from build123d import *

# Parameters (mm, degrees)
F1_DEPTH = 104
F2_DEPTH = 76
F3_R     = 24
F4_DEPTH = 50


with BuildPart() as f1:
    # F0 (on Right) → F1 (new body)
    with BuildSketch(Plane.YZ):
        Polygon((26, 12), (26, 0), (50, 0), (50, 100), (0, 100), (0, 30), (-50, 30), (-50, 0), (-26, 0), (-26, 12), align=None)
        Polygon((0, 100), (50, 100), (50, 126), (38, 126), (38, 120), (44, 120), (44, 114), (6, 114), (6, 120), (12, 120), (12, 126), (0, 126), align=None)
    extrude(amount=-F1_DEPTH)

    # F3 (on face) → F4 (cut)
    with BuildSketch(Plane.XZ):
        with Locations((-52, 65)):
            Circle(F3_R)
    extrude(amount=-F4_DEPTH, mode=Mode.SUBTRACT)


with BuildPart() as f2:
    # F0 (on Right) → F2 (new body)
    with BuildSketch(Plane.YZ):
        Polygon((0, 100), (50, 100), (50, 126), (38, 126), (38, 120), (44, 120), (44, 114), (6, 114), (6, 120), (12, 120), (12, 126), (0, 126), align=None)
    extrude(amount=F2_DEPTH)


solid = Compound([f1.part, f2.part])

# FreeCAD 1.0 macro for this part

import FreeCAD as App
import Part
import Sketcher

doc = App.newDocument("Part")
body = doc.addObject("PartDesign::Body", "Body")

sketch1 = body.newObject("Sketcher::SketchObject", "Sketch")
sketch1.AttachmentSupport = (doc.getObject("YZ_Plane"), [""])
sketch1.MapMode = "FlatFace"
sketch1.addGeometry([
    Part.LineSegment(App.Vector(26, 12, 0), App.Vector(26, 0, 0)),
    Part.LineSegment(App.Vector(26, 0, 0), App.Vector(50, 0, 0)),
    Part.LineSegment(App.Vector(50, 0, 0), App.Vector(50, 126, 0)),
    Part.LineSegment(App.Vector(50, 126, 0), App.Vector(38, 126, 0)),
    Part.LineSegment(App.Vector(38, 126, 0), App.Vector(38, 120, 0)),
    Part.LineSegment(App.Vector(38, 120, 0), App.Vector(44, 120, 0)),
    Part.LineSegment(App.Vector(44, 120, 0), App.Vector(44, 114, 0)),
    Part.LineSegment(App.Vector(44, 114, 0), App.Vector(6, 114, 0)),
    Part.LineSegment(App.Vector(6, 114, 0), App.Vector(6, 120, 0)),
    Part.LineSegment(App.Vector(6, 120, 0), App.Vector(12, 120, 0)),
    Part.LineSegment(App.Vector(12, 120, 0), App.Vector(12, 126, 0)),
    Part.LineSegment(App.Vector(12, 126, 0), App.Vector(0, 126, 0)),
    Part.LineSegment(App.Vector(0, 126, 0), App.Vector(0, 30, 0)),
    Part.LineSegment(App.Vector(0, 30, 0), App.Vector(-50, 30, 0)),
    Part.LineSegment(App.Vector(-50, 30, 0), App.Vector(-50, 0, 0)),
    Part.LineSegment(App.Vector(-50, 0, 0), App.Vector(-26, 0, 0)),
    Part.LineSegment(App.Vector(-26, 0, 0), App.Vector(-26, 12, 0)),
    Part.LineSegment(App.Vector(-26, 12, 0), App.Vector(26, 12, 0)),
], False)
sketch1.addConstraint([
    Sketcher.Constraint("Coincident", 0, 2, 1, 1),
    Sketcher.Constraint("Coincident", 1, 2, 2, 1),
    Sketcher.Constraint("Coincident", 2, 2, 3, 1),
    Sketcher.Constraint("Coincident", 3, 2, 4, 1),
    Sketcher.Constraint("Coincident", 4, 2, 5, 1),
    Sketcher.Constraint("Coincident", 5, 2, 6, 1),
    Sketcher.Constraint("Coincident", 6, 2, 7, 1),
    Sketcher.Constraint("Coincident", 7, 2, 8, 1),
    Sketcher.Constraint("Coincident", 8, 2, 9, 1),
    Sketcher.Constraint("Coincident", 9, 2, 10, 1),
    Sketcher.Constraint("Coincident", 10, 2, 11, 1),
    Sketcher.Constraint("Coincident", 11, 2, 12, 1),
    Sketcher.Constraint("Coincident", 12, 2, 13, 1),
    Sketcher.Constraint("Coincident", 13, 2, 14, 1),
    Sketcher.Constraint("Coincident", 14, 2, 15, 1),
    Sketcher.Constraint("Coincident", 15, 2, 16, 1),
    Sketcher.Constraint("Coincident", 16, 2, 17, 1),
    Sketcher.Constraint("Coincident", 17, 2, 0, 1),
    Sketcher.Constraint("Vertical", 0),
    Sketcher.Constraint("Horizontal", 1),
    Sketcher.Constraint("Vertical", 2),
    Sketcher.Constraint("Horizontal", 3),
    Sketcher.Constraint("Vertical", 4),
    Sketcher.Constraint("Horizontal", 5),
    Sketcher.Constraint("Vertical", 6),
    Sketcher.Constraint("Horizontal", 7),
    Sketcher.Constraint("Vertical", 8),
    Sketcher.Constraint("Horizontal", 9),
    Sketcher.Constraint("Vertical", 10),
    Sketcher.Constraint("Horizontal", 11),
    Sketcher.Constraint("Vertical", 12),
    Sketcher.Constraint("Horizontal", 13),
    Sketcher.Constraint("Vertical", 14),
    Sketcher.Constraint("Horizontal", 15),
    Sketcher.Constraint("Vertical", 16),
    Sketcher.Constraint("Horizontal", 17),
    Sketcher.Constraint("Symmetric", 1, 2, 14, 2, -1, 1),
    Sketcher.Constraint("Symmetric", 0, 2, 15, 2, -2),
    Sketcher.Constraint("PointOnObject", 11, 2, -2),
    Sketcher.Constraint("Horizontal", 5, 2, 8, 2),
    Sketcher.Constraint("Horizontal", 3, 2, 10, 2),
    Sketcher.Constraint("Equal", 5, 9),
    Sketcher.Constraint("Equal", 3, 11),
    Sketcher.Constraint("Equal", 11, 0),
    Sketcher.Constraint("Equal", 9, 4),
    Sketcher.Constraint("Equal", 4, 6),
    Sketcher.Constraint("DistanceX", 1, 1, 1, 2, 24.0),
    Sketcher.Constraint("DistanceX", 3, 2, 3, 1, 12.0),
    Sketcher.Constraint("DistanceX", 5, 1, 5, 2, 6.0),
    Sketcher.Constraint("DistanceX", 7, 2, 7, 1, 38.0),
    Sketcher.Constraint("DistanceY", 2, 1, 2, 2, 126.0),
    Sketcher.Constraint("DistanceY", 12, 2, 12, 1, 96.0),
])
pad1 = body.newObject("PartDesign::Pad", "Pad")
pad1.Profile = sketch1
pad1.Length = 104
pad1.Reversed = True

sketch2 = body.newObject("Sketcher::SketchObject", "Sketch001")
sketch2.AttachmentSupport = (doc.getObject("XZ_Plane"), [""])
sketch2.MapMode = "FlatFace"
sketch2.addGeometry(Part.Circle(App.Vector(-52, 65, 0), App.Vector(0, 0, 1), 24), False)
sketch2.addConstraint([
    Sketcher.Constraint("Diameter", 0, 48.0),
    Sketcher.Constraint("DistanceX", 0, 3, -1, 1, 52.0),
    Sketcher.Constraint("DistanceY", -1, 1, 0, 3, 65.0),
])
pocket1 = body.newObject("PartDesign::Pocket", "Pocket")
pocket1.Profile = sketch2
pocket1.Length = 50
body2 = doc.addObject("PartDesign::Body", "Body001")

sketch3 = body2.newObject("Sketcher::SketchObject", "Sketch002")
sketch3.AttachmentSupport = (doc.getObject("YZ_Plane001"), [""])
sketch3.MapMode = "FlatFace"
sketch3.addGeometry([
    Part.LineSegment(App.Vector(0, 100, 0), App.Vector(50, 100, 0)),
    Part.LineSegment(App.Vector(50, 100, 0), App.Vector(50, 126, 0)),
    Part.LineSegment(App.Vector(50, 126, 0), App.Vector(38, 126, 0)),
    Part.LineSegment(App.Vector(38, 126, 0), App.Vector(38, 120, 0)),
    Part.LineSegment(App.Vector(38, 120, 0), App.Vector(44, 120, 0)),
    Part.LineSegment(App.Vector(44, 120, 0), App.Vector(44, 114, 0)),
    Part.LineSegment(App.Vector(44, 114, 0), App.Vector(6, 114, 0)),
    Part.LineSegment(App.Vector(6, 114, 0), App.Vector(6, 120, 0)),
    Part.LineSegment(App.Vector(6, 120, 0), App.Vector(12, 120, 0)),
    Part.LineSegment(App.Vector(12, 120, 0), App.Vector(12, 126, 0)),
    Part.LineSegment(App.Vector(12, 126, 0), App.Vector(0, 126, 0)),
    Part.LineSegment(App.Vector(0, 126, 0), App.Vector(0, 100, 0)),
], False)
sketch3.addConstraint([
    Sketcher.Constraint("Coincident", 0, 2, 1, 1),
    Sketcher.Constraint("Coincident", 1, 2, 2, 1),
    Sketcher.Constraint("Coincident", 2, 2, 3, 1),
    Sketcher.Constraint("Coincident", 3, 2, 4, 1),
    Sketcher.Constraint("Coincident", 4, 2, 5, 1),
    Sketcher.Constraint("Coincident", 5, 2, 6, 1),
    Sketcher.Constraint("Coincident", 6, 2, 7, 1),
    Sketcher.Constraint("Coincident", 7, 2, 8, 1),
    Sketcher.Constraint("Coincident", 8, 2, 9, 1),
    Sketcher.Constraint("Coincident", 9, 2, 10, 1),
    Sketcher.Constraint("Coincident", 10, 2, 11, 1),
    Sketcher.Constraint("Coincident", 11, 2, 0, 1),
    Sketcher.Constraint("Horizontal", 0),
    Sketcher.Constraint("Vertical", 1),
    Sketcher.Constraint("Horizontal", 2),
    Sketcher.Constraint("Vertical", 3),
    Sketcher.Constraint("Horizontal", 4),
    Sketcher.Constraint("Vertical", 5),
    Sketcher.Constraint("Horizontal", 6),
    Sketcher.Constraint("Vertical", 7),
    Sketcher.Constraint("Horizontal", 8),
    Sketcher.Constraint("Vertical", 9),
    Sketcher.Constraint("Horizontal", 10),
    Sketcher.Constraint("Vertical", 11),
    Sketcher.Constraint("PointOnObject", 10, 2, -2),
    Sketcher.Constraint("Horizontal", 4, 2, 7, 2),
    Sketcher.Constraint("Horizontal", 2, 2, 9, 2),
    Sketcher.Constraint("Equal", 4, 8),
    Sketcher.Constraint("Equal", 2, 10),
    Sketcher.Constraint("Equal", 8, 3),
    Sketcher.Constraint("Equal", 3, 5),
    Sketcher.Constraint("DistanceX", 0, 1, 0, 2, 50.0),
    Sketcher.Constraint("DistanceX", 2, 2, 2, 1, 12.0),
    Sketcher.Constraint("DistanceX", 4, 1, 4, 2, 6.0),
    Sketcher.Constraint("DistanceY", 1, 1, 1, 2, 26.0),
    Sketcher.Constraint("DistanceY", -1, 1, 0, 2, 100.0),
])
pad2 = body2.newObject("PartDesign::Pad", "Pad001")
pad2.Profile = sketch3
pad2.Length = 76

doc.recompute()
